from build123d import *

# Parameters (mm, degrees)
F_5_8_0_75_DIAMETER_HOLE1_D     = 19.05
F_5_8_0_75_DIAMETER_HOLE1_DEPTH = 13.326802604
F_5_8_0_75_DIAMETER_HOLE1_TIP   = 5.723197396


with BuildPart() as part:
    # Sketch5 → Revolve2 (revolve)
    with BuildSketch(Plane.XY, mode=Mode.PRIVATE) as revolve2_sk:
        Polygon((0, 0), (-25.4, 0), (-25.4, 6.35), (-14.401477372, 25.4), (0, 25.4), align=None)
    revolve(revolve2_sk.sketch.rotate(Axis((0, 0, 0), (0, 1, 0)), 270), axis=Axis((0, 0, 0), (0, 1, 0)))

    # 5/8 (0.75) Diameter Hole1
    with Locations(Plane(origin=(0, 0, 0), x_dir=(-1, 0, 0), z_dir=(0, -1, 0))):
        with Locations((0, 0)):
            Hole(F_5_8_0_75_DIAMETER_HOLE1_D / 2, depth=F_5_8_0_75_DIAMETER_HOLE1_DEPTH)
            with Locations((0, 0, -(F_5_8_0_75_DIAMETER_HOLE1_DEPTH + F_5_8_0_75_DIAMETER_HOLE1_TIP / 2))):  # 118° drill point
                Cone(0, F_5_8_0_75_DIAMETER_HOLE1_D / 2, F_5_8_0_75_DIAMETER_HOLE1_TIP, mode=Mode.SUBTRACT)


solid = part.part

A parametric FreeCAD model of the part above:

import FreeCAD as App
import Part
import Sketcher
Q = App.Units.Quantity


def add_polygon(sketch, points):
    """Adds a closed chain of lines whose ends are joined by coincident constraints."""
    first, n = sketch.GeometryCount, len(points)
    for a, b in zip(points, points[1:] + points[:1]):
        sketch.addGeometry(Part.LineSegment(App.Vector(*a, 0), App.Vector(*b, 0)), False)
    for i in range(n):
        sketch.addConstraint(Sketcher.Constraint("Coincident", first + i, 2, first + (i + 1) % n, 1))

doc = App.newDocument("Part")
body = doc.addObject("PartDesign::Body", "Body")

sketch1 = body.newObject("Sketcher::SketchObject", "Sketch")
sketch1.AttachmentSupport = (doc.getObject("XY_Plane"), [""])
sketch1.MapMode = "FlatFace"
add_polygon(sketch1, [(-25, 0), (0, 0), (0, 25), (-14, 25), (-25, 6)])
sketch1.addConstraint([
    Sketcher.Constraint("Horizontal", 0),
    Sketcher.Constraint("Vertical", 1),
    Sketcher.Constraint("Horizontal", 2),
    Sketcher.Constraint("Vertical", 4),
    Sketcher.Constraint("Coincident", 0, 2, -1, 1),
    Sketcher.Constraint("Equal", 0, 1),
    Sketcher.Constraint("DistanceX", 0, 1, 0, 2, Q("1 in")),
    Sketcher.Constraint("Angle", 3, Q("-120 deg")),
    Sketcher.Constraint("DistanceY", 4, 2, 4, 1, Q("0.25 in")),
])
revolution = body.newObject("PartDesign::Revolution", "Revolution")
revolution.Profile = sketch1
revolution.ReferenceAxis = (sketch1, ["V_Axis"])
revolution.Angle = 360

sketch2 = body.newObject("Sketcher::SketchObject", "Sketch001")
sketch2.AttachmentSupport = (doc.getObject("XZ_Plane"), [""])
sketch2.MapMode = "FlatFace"
sketch2.addGeometry(Part.Circle(App.Vector(0, 0, 0), App.Vector(0, 0, 1), 10), False)
sketch2.addConstraint([
    Sketcher.Constraint("Coincident", 0, 3, -1, 1),
    Sketcher.Constraint("Diameter", 0, Q("0.75 in")),
])
doc.recompute()
hole = body.newObject("PartDesign::Hole", "Hole")
hole.Profile = sketch2
hole.ThreadType = "None"
hole.Diameter = Q("0.75 in")
hole.DepthType = "Dimension"
hole.Depth = 13.326803
hole.DrillPoint = "Angled"
hole.DrillPointAngle = 118

doc.recompute()
